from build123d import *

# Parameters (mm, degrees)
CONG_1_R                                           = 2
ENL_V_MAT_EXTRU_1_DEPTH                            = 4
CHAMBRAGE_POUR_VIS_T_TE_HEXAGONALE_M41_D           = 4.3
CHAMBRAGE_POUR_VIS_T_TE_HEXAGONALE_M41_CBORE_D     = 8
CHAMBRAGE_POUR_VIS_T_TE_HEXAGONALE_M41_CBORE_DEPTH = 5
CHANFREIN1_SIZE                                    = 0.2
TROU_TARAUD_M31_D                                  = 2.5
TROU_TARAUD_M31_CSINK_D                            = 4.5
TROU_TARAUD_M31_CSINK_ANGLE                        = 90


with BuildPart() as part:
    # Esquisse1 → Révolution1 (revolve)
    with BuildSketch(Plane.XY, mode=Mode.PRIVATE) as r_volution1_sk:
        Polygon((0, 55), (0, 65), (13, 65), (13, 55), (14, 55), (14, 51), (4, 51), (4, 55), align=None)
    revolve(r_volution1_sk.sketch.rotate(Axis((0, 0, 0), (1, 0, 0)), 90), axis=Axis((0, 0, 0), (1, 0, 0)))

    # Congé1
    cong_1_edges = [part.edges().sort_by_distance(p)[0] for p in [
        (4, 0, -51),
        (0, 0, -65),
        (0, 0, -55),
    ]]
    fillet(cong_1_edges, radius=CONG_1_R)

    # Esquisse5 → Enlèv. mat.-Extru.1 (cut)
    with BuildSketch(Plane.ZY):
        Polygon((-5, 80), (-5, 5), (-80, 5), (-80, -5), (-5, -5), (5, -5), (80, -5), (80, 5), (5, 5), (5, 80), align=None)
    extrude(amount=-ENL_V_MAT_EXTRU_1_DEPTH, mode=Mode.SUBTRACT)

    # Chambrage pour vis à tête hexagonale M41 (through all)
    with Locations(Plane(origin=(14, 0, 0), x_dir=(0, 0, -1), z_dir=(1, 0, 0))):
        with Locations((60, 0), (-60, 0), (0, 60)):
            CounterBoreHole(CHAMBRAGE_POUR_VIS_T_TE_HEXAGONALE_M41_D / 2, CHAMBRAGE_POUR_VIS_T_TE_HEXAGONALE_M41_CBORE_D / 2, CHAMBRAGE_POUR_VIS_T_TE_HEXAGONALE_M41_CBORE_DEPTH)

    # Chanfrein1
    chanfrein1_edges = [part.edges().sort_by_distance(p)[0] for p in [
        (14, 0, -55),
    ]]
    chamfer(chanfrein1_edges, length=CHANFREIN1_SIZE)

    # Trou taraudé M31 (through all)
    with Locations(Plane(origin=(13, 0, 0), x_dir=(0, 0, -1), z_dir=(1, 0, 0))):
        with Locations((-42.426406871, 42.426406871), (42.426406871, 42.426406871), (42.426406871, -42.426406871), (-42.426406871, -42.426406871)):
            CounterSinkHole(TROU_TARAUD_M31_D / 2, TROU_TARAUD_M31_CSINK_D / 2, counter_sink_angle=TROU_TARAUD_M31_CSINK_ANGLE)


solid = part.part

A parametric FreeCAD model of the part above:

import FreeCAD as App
import Part
import Sketcher

V = App.Vector
Q = App.Units.Quantity


def edges_at(feature, points):
    """Names of the edges that pass closest to the given points."""
    edges = feature.Shape.Edges
    near = lambda p: min(range(len(edges)), key=lambda i: edges[i].distToShape(Part.Vertex(*p))[0])
    return sorted({f"Edge{near(p) + 1}" for p in points})


def add_polygon(sketch, points):
    """Adds a closed chain of lines whose ends are joined by coincident constraints."""
    first, n = sketch.GeometryCount, len(points)
    for a, b in zip(points, points[1:] + points[:1]):
        sketch.addGeometry(Part.LineSegment(App.Vector(*a, 0), App.Vector(*b, 0)), False)
    for i in range(n):
        sketch.addConstraint(Sketcher.Constraint("Coincident", first + i, 2, first + (i + 1) % n, 1))

doc = App.newDocument("Part")
body = doc.addObject("PartDesign::Body", "Body")

# Sketch on XY plane
sketch1 = doc.addObject("Sketcher::SketchObject", "Sketch")
body.addObject(sketch1)
sketch1.AttachmentSupport = (doc.XY_Plane, [""])
sketch1.MapMode = "FlatFace"
add_polygon(sketch1, [(0, 65), (0, 55), (4, 55), (4, 51), (14, 51), (14, 55), (13, 55), (13, 65)])  # lines 0-7
sketch1.addConstraint(Sketcher.Constraint("Vertical", 0))
sketch1.addConstraint(Sketcher.Constraint("Horizontal", 1))
sketch1.addConstraint(Sketcher.Constraint("Vertical", 2))
sketch1.addConstraint(Sketcher.Constraint("Horizontal", 3))
sketch1.addConstraint(Sketcher.Constraint("Vertical", 4))
sketch1.addConstraint(Sketcher.Constraint("Horizontal", 5))
sketch1.addConstraint(Sketcher.Constraint("Vertical", 6))
sketch1.addConstraint(Sketcher.Constraint("Horizontal", 7))
sketch1.addConstraint(Sketcher.Constraint("PointOnObject", 0, 2, -2))
sketch1.addConstraint(Sketcher.Constraint("Horizontal", 1, 2, 4, 2))
sketch1.addConstraint(Sketcher.Constraint("Equal", 3, 0))
sketch1.addConstraint(Sketcher.Constraint("Equal", 1, 2))
sketch1.addConstraint(Sketcher.Constraint("DistanceX", 1, 1, 1, 2, Q("4 mm")))
sketch1.addConstraint(Sketcher.Constraint("DistanceX", 3, 1, 3, 2, Q("10 mm")))
sketch1.addConstraint(Sketcher.Constraint("DistanceX", 5, 2, 5, 1, Q("1 mm")))
sketch1.addConstraint(Sketcher.Constraint("DistanceY", -1, 1, 0, 2, Q("55 mm")))
revolution = doc.addObject("PartDesign::Revolution", "Revolution")
body.addObject(revolution)
revolution.Profile = sketch1
revolution.ReferenceAxis = (sketch1, ["H_Axis"])
revolution.Angle = 360
doc.recompute()

fillet = doc.addObject("PartDesign::Fillet", "Fillet")
body.addObject(fillet)
fillet.Base = (revolution, edges_at(revolution, [(4, 0, -51), (0, 0, -65), (0, 0, -55)]))
fillet.Radius = 2

# Sketch on YZ plane
sketch2 = doc.addObject("Sketcher::SketchObject", "Sketch001")
body.addObject(sketch2)
sketch2.AttachmentSupport = (doc.YZ_Plane, [""])
sketch2.MapMode = "FlatFace"
add_polygon(sketch2, [(80, -5), (5, -5), (5, -80), (-5, -80), (-5, 80), (5, 80), (5, 5), (80, 5)])  # lines 0-7
sketch2.addConstraint(Sketcher.Constraint("Horizontal", 0))
sketch2.addConstraint(Sketcher.Constraint("Vertical", 1))
sketch2.addConstraint(Sketcher.Constraint("Horizontal", 2))
sketch2.addConstraint(Sketcher.Constraint("Vertical", 3))
sketch2.addConstraint(Sketcher.Constraint("Horizontal", 4))
sketch2.addConstraint(Sketcher.Constraint("Vertical", 5))
sketch2.addConstraint(Sketcher.Constraint("Horizontal", 6))
sketch2.addConstraint(Sketcher.Constraint("Vertical", 7))
sketch2.addConstraint(Sketcher.Constraint("Symmetric", 1, 2, 3, 2, -1, 1))
sketch2.addConstraint(Sketcher.Constraint("Symmetric", 0, 2, 5, 2, -1))
sketch2.addConstraint(Sketcher.Constraint("Equal", 6, 1))
sketch2.addConstraint(Sketcher.Constraint("Equal", 4, 7))
sketch2.addConstraint(Sketcher.Constraint("DistanceX", 0, 2, 0, 1, Q("75 mm")))
sketch2.addConstraint(Sketcher.Constraint("DistanceX", 2, 2, 2, 1, Q("10 mm")))
pocket1 = doc.addObject("PartDesign::Pocket", "Pocket")
body.addObject(pocket1)
pocket1.Profile = sketch2
pocket1.Length = 4
pocket1.Reversed = True

# Sketch on YZ plane
sketch3 = doc.addObject("Sketcher::SketchObject", "Sketch002")
body.addObject(sketch3)
sketch3.AttachmentSupport = (doc.YZ_Plane, [""])
sketch3.MapMode = "FlatFace"
sketch3.AttachmentOffset = App.Placement(V(0, 0, 14), App.Rotation())
sketch3.addGeometry(Part.Circle(V(0, -60, 0), V(0, 0, 1), 2.1), False)
sketch3.addGeometry(Part.Circle(V(0, 60, 0), V(0, 0, 1), 2.1), False)
sketch3.addGeometry(Part.Circle(V(60, 0, 0), V(0, 0, 1), 2.1), False)
sketch3.addConstraint(Sketcher.Constraint("Equal", 0, 1))
sketch3.addConstraint(Sketcher.Constraint("Equal", 1, 2))
sketch3.addConstraint(Sketcher.Constraint("Symmetric", 0, 3, 1, 3, -1, 1))
sketch3.addConstraint(Sketcher.Constraint("PointOnObject", 0, 3, -2))
sketch3.addConstraint(Sketcher.Constraint("PointOnObject", 2, 3, -1))
sketch3.addConstraint(Sketcher.Constraint("Diameter", 0, Q("4.3 mm")))
sketch3.addConstraint(Sketcher.Constraint("DistanceY", 0, 3, -1, 1, Q("60 mm")))
sketch3.addConstraint(Sketcher.Constraint("DistanceX", -1, 1, 2, 3, Q("60 mm")))
doc.recompute()
hole = doc.addObject("PartDesign::Hole", "Hole")
body.addObject(hole)
hole.Profile = sketch3
hole.ThreadType = "None"
hole.Diameter = 4.3
hole.DepthType = "ThroughAll"
hole.HoleCutType = "Counterbore"
hole.HoleCutDiameter = 8
hole.HoleCutDepth = 5
doc.recompute()

chamfer = doc.addObject("PartDesign::Chamfer", "Chamfer")
body.addObject(chamfer)
chamfer.Base = (hole, edges_at(hole, [(14, 0, -55)]))
chamfer.Size = 0.2

# Sketch on YZ plane
sketch4 = doc.addObject("Sketcher::SketchObject", "Sketch003")
body.addObject(sketch4)
sketch4.AttachmentSupport = (doc.YZ_Plane, [""])
sketch4.MapMode = "FlatFace"
sketch4.AttachmentOffset = App.Placement(V(0, 0, 13), App.Rotation())
sketch4.addGeometry(Part.Circle(V(42.4, 42.4, 0), V(0, 0, 1), 1.2), False)
sketch4.addGeometry(Part.Circle(V(42.4, -42.4, 0), V(0, 0, 1), 1.2), False)
sketch4.addGeometry(Part.Circle(V(-42.4, -42.4, 0), V(0, 0, 1), 1.2), False)
sketch4.addGeometry(Part.Circle(V(-42.4, 42.4, 0), V(0, 0, 1), 1.2), False)
sketch4.addConstraint(Sketcher.Constraint("Equal", 0, 1))
sketch4.addConstraint(Sketcher.Constraint("Equal", 1, 2))
sketch4.addConstraint(Sketcher.Constraint("Equal", 2, 3))
sketch4.addConstraint(Sketcher.Constraint("Symmetric", 0, 3, 2, 3, -1, 1))
sketch4.addConstraint(Sketcher.Constraint("Symmetric", 1, 3, 3, 3, -1, 1))
sketch4.addConstraint(Sketcher.Constraint("Symmetric", 1, 3, 2, 3, -2))
sketch4.addConstraint(Sketcher.Constraint("Diameter", 0, Q("2.5 mm")))
sketch4.addConstraint(Sketcher.Constraint("DistanceX", -1, 1, 0, 3, Q("42.426407 mm")))
sketch4.addConstraint(Sketcher.Constraint("DistanceY", -1, 1, 0, 3, Q("42.426407 mm")))
doc.recompute()
hole2 = doc.addObject("PartDesign::Hole", "Hole001")
body.addObject(hole2)
hole2.Profile = sketch4
hole2.ThreadType = "None"
hole2.Diameter = 2.5
hole2.DepthType = "ThroughAll"
hole2.HoleCutType = "Countersink"
hole2.HoleCutDiameter = 4.5
hole2.HoleCutCountersinkAngle = 90

doc.recompute()
